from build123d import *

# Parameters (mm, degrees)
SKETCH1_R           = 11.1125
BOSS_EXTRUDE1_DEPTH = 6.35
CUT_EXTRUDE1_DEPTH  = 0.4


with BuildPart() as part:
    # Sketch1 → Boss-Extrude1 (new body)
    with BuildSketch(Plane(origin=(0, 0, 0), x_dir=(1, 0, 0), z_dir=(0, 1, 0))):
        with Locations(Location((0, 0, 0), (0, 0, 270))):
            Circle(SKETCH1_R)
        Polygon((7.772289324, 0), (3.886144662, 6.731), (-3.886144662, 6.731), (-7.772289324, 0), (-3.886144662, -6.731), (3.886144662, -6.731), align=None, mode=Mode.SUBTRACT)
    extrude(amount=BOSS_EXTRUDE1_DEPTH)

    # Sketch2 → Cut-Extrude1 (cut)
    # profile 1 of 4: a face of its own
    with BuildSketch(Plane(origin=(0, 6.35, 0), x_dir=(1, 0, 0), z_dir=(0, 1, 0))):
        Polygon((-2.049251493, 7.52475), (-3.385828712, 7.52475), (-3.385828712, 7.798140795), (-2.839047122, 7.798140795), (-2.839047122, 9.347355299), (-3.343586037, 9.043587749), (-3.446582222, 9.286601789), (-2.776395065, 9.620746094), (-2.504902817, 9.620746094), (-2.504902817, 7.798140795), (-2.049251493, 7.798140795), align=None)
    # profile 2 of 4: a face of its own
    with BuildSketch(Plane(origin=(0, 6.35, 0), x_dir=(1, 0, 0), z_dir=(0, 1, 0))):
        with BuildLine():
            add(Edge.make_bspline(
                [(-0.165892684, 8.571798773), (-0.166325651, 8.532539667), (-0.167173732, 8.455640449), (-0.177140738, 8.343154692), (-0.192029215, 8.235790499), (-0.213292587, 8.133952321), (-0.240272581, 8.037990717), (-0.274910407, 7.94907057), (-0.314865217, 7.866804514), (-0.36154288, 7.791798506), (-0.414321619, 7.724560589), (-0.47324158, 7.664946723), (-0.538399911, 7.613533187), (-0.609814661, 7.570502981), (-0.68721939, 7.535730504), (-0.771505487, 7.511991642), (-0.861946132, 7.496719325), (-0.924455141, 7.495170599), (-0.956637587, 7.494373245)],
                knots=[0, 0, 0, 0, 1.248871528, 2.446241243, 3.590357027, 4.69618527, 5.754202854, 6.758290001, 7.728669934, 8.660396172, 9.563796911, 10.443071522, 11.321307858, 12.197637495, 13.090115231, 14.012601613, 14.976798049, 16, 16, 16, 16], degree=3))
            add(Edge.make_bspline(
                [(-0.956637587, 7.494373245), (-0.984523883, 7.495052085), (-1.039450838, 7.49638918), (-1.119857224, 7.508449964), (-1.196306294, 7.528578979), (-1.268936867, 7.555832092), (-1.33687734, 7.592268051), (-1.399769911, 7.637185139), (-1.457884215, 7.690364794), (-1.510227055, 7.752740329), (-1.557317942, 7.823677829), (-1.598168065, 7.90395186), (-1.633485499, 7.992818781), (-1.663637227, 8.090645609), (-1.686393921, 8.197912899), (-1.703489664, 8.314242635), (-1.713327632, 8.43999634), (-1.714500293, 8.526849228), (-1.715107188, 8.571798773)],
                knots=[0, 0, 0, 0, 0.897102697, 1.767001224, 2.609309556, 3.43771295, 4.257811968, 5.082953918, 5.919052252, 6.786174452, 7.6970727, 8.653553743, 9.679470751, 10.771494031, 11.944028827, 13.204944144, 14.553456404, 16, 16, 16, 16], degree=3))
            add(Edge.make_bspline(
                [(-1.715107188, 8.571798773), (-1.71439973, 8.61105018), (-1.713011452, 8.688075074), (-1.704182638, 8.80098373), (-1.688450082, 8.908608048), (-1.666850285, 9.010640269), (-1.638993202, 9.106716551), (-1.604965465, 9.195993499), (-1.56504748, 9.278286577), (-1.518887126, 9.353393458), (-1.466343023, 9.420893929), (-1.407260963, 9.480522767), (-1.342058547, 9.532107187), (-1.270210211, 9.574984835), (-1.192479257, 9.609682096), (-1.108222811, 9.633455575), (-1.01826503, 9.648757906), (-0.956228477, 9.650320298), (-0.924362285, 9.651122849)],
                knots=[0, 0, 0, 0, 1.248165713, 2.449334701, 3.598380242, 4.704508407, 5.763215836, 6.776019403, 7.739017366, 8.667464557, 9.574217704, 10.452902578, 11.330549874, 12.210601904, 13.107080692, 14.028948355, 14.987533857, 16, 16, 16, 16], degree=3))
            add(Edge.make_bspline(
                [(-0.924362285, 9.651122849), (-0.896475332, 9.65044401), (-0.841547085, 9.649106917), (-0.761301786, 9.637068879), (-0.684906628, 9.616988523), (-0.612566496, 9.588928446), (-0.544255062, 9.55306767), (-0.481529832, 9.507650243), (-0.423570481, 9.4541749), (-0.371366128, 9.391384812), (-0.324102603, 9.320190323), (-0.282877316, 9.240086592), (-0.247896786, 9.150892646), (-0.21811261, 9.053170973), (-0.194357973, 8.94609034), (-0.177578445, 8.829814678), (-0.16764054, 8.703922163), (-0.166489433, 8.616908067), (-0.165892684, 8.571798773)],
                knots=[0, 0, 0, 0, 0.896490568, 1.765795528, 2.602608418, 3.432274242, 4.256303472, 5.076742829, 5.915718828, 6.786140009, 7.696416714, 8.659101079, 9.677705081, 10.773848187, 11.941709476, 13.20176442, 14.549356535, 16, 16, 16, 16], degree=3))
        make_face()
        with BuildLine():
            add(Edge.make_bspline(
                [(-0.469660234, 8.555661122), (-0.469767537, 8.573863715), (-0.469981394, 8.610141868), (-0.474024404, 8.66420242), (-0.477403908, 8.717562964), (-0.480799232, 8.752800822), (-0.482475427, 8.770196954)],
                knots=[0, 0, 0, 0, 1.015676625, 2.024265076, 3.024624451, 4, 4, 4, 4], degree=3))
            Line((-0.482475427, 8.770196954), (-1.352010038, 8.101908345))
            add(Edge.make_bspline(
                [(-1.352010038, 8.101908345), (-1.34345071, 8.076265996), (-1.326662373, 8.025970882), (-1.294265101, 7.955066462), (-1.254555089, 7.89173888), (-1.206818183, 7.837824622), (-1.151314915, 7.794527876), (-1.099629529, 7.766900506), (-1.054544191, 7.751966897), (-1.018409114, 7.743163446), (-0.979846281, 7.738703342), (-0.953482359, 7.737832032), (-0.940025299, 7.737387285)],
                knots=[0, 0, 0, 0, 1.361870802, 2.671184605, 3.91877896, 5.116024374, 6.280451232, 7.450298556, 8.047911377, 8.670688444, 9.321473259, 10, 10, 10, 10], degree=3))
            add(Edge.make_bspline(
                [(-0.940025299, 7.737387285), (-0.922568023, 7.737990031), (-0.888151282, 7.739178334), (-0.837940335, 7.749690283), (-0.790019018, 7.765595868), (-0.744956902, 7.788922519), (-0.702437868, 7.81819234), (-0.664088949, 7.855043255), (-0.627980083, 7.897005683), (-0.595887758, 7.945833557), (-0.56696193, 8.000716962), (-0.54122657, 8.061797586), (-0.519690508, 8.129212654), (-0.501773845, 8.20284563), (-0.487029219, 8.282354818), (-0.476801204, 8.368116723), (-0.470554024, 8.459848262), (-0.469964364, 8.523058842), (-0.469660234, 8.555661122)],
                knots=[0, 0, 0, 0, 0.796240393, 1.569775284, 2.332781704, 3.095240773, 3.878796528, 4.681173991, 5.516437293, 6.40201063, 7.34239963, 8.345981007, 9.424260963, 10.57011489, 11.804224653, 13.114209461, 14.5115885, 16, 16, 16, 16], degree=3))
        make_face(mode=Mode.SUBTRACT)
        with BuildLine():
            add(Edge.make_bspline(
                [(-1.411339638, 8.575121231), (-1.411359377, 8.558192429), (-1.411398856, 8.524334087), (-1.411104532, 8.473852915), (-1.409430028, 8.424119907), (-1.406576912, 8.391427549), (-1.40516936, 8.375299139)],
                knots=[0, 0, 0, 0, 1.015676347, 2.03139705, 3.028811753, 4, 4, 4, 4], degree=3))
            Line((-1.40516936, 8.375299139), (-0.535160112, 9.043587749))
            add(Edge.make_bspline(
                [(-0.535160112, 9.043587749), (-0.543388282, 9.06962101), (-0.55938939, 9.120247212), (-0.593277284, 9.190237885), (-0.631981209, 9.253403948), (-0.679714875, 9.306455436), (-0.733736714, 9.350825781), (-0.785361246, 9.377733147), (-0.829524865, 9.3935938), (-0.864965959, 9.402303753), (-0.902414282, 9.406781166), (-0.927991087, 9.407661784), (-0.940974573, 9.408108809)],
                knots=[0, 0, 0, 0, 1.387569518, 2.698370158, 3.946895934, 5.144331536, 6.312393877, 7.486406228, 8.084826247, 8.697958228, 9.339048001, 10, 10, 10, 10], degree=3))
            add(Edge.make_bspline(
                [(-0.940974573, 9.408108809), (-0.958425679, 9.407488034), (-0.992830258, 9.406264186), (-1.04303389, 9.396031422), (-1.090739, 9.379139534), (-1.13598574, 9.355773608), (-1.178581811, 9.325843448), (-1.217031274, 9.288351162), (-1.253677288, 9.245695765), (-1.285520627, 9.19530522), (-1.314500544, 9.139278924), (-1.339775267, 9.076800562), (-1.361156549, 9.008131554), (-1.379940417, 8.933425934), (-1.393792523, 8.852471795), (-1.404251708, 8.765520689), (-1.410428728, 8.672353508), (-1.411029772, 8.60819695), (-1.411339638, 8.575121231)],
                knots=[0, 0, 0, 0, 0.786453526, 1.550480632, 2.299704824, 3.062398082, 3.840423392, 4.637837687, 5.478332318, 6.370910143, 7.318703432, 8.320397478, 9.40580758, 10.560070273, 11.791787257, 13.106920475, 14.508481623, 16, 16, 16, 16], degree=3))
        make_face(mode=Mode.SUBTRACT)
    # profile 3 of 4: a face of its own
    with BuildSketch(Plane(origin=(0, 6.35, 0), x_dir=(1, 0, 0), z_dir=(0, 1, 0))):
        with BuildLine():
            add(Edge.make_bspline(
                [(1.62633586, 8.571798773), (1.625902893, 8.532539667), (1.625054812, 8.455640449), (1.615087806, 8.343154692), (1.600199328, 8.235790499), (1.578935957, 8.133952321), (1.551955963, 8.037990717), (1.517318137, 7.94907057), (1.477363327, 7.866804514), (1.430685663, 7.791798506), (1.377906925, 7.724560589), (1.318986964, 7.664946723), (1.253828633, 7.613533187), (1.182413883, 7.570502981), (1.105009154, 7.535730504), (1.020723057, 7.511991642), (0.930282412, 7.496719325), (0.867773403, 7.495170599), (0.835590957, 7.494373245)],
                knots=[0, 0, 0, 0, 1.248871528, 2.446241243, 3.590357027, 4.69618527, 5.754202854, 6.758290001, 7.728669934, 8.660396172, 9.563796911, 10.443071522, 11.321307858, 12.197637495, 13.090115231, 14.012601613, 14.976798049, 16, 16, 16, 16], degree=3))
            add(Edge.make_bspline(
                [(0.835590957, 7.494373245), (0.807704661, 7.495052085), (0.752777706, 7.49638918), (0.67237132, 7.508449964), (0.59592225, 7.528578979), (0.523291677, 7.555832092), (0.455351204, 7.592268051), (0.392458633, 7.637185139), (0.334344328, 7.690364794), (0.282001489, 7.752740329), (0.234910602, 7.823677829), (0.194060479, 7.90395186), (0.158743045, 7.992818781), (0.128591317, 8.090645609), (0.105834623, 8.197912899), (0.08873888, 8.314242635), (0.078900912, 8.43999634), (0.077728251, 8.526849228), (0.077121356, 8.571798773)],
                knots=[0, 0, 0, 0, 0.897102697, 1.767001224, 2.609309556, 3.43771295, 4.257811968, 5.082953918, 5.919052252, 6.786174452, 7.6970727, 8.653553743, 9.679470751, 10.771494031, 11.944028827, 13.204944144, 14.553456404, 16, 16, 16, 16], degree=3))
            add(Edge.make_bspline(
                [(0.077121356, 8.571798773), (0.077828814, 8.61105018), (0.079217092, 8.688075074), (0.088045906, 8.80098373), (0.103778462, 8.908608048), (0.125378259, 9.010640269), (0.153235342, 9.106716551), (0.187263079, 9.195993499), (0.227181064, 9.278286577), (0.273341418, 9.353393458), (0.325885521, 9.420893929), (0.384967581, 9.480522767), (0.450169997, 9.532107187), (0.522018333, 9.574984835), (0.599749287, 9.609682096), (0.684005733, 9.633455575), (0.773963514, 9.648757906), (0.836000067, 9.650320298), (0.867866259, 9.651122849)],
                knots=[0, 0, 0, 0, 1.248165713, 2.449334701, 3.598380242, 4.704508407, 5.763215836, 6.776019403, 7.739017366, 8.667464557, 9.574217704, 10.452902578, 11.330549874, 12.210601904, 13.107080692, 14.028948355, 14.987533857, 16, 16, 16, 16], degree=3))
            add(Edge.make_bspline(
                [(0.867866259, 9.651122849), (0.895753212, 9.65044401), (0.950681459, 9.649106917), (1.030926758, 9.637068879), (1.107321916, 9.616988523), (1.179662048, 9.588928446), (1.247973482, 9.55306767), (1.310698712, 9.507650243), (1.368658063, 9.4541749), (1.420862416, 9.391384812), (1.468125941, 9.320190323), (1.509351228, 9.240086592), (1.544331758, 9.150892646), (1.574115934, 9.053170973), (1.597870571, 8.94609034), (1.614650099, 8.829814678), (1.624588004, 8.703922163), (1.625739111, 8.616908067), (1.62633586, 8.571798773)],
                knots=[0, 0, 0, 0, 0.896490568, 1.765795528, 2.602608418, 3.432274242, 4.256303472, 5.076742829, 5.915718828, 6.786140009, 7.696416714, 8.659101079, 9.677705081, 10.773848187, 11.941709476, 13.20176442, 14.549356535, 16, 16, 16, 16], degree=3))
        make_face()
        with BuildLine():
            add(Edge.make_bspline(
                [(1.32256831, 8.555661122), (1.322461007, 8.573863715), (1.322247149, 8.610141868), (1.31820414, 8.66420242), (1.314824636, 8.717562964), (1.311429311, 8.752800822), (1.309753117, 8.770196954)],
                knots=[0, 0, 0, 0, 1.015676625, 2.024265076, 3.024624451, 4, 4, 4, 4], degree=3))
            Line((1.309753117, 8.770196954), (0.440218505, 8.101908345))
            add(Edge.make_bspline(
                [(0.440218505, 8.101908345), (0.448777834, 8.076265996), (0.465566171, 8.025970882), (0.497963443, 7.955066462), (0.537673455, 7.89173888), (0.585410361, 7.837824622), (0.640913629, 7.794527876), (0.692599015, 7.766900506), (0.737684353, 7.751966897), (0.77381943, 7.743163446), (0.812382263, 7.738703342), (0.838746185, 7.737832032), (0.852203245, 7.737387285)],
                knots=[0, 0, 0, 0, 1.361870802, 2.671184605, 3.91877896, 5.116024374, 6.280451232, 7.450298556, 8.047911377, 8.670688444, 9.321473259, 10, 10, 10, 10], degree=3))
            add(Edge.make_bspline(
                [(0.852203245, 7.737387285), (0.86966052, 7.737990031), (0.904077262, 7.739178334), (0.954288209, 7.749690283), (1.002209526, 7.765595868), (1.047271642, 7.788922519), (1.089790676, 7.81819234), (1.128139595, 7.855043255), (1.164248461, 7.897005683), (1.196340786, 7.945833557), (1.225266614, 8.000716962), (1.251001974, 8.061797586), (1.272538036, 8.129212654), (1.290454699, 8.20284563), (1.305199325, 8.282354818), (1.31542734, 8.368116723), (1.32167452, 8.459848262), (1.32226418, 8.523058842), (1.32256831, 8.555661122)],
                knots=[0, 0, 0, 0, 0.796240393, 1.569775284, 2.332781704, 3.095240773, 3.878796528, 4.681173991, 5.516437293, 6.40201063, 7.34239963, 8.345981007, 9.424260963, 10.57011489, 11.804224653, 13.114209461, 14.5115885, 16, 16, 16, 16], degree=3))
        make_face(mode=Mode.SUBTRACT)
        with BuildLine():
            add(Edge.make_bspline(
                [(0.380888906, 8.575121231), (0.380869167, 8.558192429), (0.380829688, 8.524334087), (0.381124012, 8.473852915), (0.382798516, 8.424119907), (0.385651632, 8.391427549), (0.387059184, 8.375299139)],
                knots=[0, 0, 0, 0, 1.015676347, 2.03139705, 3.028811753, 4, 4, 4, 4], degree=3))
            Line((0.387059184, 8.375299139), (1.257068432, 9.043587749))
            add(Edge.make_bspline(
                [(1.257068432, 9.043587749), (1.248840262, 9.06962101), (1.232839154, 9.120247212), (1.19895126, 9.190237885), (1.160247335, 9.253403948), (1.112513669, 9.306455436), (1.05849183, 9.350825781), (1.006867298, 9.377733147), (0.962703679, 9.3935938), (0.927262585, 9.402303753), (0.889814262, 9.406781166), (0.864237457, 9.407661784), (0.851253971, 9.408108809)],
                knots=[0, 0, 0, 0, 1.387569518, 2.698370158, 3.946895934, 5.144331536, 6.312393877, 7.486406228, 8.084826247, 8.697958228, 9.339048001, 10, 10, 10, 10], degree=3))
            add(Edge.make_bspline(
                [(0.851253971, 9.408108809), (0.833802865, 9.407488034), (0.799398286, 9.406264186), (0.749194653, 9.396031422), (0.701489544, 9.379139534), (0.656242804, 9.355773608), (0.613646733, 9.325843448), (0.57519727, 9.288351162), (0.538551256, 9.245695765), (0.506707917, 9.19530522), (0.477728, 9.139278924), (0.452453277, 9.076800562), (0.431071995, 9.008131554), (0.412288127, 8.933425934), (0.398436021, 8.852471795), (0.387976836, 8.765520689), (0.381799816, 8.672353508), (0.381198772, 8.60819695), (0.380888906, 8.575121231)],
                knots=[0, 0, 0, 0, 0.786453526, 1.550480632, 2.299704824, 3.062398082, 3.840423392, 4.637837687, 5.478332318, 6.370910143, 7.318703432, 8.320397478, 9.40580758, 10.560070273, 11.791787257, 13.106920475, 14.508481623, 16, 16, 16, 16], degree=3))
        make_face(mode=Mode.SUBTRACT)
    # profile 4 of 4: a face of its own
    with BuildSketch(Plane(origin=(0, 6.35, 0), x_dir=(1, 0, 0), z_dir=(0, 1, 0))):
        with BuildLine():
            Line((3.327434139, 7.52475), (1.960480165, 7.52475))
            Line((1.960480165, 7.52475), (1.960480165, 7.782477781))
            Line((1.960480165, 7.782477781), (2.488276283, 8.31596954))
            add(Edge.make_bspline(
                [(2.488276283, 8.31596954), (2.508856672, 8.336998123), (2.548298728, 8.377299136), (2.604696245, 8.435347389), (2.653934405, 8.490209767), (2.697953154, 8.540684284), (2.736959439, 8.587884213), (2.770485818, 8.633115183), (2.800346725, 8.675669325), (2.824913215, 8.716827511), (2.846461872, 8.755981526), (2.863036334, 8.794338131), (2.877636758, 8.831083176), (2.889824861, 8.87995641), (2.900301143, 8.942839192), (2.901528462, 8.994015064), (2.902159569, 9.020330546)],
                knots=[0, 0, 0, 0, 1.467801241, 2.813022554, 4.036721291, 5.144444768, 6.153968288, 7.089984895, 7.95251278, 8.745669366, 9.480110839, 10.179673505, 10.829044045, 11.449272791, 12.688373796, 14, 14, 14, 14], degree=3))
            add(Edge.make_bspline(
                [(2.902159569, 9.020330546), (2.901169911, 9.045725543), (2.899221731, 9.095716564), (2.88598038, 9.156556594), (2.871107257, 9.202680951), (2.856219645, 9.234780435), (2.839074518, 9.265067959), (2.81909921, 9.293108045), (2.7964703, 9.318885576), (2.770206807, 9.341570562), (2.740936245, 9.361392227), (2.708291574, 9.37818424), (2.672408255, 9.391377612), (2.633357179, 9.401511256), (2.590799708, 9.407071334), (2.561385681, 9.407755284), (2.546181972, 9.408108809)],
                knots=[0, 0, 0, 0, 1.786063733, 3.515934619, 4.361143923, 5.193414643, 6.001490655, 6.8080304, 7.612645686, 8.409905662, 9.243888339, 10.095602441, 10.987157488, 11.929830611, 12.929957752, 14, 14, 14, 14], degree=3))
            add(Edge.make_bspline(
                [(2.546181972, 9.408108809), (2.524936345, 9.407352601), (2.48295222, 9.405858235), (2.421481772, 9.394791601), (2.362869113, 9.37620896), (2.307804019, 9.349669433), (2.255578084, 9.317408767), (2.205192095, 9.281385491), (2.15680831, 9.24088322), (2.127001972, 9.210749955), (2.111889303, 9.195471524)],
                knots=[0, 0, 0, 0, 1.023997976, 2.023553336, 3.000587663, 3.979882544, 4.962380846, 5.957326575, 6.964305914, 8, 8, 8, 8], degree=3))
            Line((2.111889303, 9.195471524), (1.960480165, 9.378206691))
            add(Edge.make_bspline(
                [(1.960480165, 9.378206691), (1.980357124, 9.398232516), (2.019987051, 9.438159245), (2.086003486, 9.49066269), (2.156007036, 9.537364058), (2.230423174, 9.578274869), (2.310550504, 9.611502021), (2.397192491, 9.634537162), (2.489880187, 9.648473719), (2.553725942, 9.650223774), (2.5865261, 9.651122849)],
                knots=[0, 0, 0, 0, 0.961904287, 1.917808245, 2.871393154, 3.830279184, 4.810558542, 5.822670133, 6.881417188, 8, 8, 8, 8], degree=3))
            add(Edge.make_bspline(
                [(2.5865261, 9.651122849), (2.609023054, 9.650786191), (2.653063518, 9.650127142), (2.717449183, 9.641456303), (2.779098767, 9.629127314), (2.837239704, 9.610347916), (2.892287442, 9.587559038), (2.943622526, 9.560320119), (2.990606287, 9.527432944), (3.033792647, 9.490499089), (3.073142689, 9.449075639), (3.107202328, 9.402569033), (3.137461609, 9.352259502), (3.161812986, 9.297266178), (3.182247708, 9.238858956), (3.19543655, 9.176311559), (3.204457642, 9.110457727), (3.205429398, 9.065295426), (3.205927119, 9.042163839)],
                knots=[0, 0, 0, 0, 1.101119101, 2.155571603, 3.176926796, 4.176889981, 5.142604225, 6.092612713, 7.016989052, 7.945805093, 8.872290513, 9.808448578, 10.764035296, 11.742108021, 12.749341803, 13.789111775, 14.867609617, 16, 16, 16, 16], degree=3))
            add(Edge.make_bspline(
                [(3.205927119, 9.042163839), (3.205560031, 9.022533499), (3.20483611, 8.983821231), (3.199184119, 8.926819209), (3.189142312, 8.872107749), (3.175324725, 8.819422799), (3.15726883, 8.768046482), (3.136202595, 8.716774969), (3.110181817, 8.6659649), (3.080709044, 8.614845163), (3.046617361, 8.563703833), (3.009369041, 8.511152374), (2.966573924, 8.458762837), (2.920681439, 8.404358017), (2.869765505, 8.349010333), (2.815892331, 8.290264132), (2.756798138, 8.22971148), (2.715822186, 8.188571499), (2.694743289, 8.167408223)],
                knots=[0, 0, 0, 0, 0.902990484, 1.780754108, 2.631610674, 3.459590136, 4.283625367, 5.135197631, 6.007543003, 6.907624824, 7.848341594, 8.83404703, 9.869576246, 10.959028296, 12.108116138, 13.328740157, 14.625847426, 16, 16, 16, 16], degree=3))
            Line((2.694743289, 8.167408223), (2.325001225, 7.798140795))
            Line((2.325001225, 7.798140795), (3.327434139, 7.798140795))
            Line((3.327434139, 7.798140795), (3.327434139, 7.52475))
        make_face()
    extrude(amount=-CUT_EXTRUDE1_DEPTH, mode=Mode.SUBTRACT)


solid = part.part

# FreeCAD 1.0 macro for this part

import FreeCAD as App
import Part
import Sketcher

V = App.Vector
Q = App.Units.Quantity


def add_polygon(sketch, points):
    """Adds a closed chain of lines whose ends are joined by coincident constraints."""
    first, n = sketch.GeometryCount, len(points)
    for a, b in zip(points, points[1:] + points[:1]):
        sketch.addGeometry(Part.LineSegment(App.Vector(*a, 0), App.Vector(*b, 0)), False)
    for i in range(n):
        sketch.addConstraint(Sketcher.Constraint("Coincident", first + i, 2, first + (i + 1) % n, 1))

doc = App.newDocument("Part")
body = doc.addObject("PartDesign::Body", "Body")

# Sketch on XZ plane
sketch1 = doc.addObject("Sketcher::SketchObject", "Sketch")
body.addObject(sketch1)
sketch1.AttachmentSupport = (doc.XZ_Plane, [""])
sketch1.MapMode = "FlatFace"
sketch1.addGeometry(Part.Circle(V(0, 0, 0), V(0, 0, 1), 11.1125), False)  # 0
add_polygon(sketch1, [(3.886145, -6.731), (7.772289, 0), (3.886145, 6.731), (-3.886145, 6.731), (-7.772289, 0), (-3.886145, -6.731)])  # lines 1-6
sketch1.addConstraint([
    Sketcher.Constraint("Horizontal", 3),
    Sketcher.Constraint("Horizontal", 6),
    Sketcher.Constraint("Coincident", 0, 3, -1, 1),
    Sketcher.Constraint("Symmetric", 1, 2, 4, 2, -1, 1),
    Sketcher.Constraint("Symmetric", 2, 2, 5, 2, -1, 1),
    Sketcher.Constraint("PointOnObject", 1, 2, -1),
    Sketcher.Constraint("Parallel", 1, 4),
    Sketcher.Constraint("Vertical", 3, 2, 5, 2),
    Sketcher.Constraint("Diameter", 0, Q("0.875 in")),
    Sketcher.Constraint("Angle", 1, Q("60 deg")),
    Sketcher.Constraint("DistanceY", 5, 2, 3, 2, Q("0.53 in")),
    Sketcher.Constraint("DistanceX", 3, 2, 3, 1, Q("7.772289 mm")),
])
pad1 = doc.addObject("PartDesign::Pad", "Pad")
body.addObject(pad1)
pad1.Profile = sketch1
pad1.Length = Q("0.25 in")
pad1.Reversed = True

# Sketch on XZ plane
sketch2 = doc.addObject("Sketcher::SketchObject", "Sketch001")
body.addObject(sketch2)
sketch2.AttachmentSupport = (doc.XZ_Plane, [""])
sketch2.MapMode = "FlatFace"
sketch2.AttachmentOffset = App.Placement(V(0, 0, -0.25 * 25.4), App.Rotation())
add_polygon(sketch2, [(-3.385829, -7.52475), (-2.049251, -7.52475), (-2.049251, -7.798141), (-2.504903, -7.798141), (-2.504903, -9.620746), (-2.776395, -9.620746), (-3.446582, -9.286602), (-3.343586, -9.043588), (-2.839047, -9.347355), (-2.839047, -7.798141), (-3.385829, -7.798141)])  # lines 0-10
sketch2.addGeometry(Part.BSplineCurve([V(-0.165893, -8.571799, 0), V(-0.166326, -8.53254, 0), V(-0.167174, -8.45564, 0), V(-0.177141, -8.343155, 0), V(-0.192029, -8.23579, 0), V(-0.213293, -8.133952, 0), V(-0.240273, -8.037991, 0), V(-0.27491, -7.949071, 0), V(-0.314865, -7.866805, 0), V(-0.361543, -7.791799, 0), V(-0.414322, -7.724561, 0), V(-0.473242, -7.664947, 0), V(-0.5384, -7.613533, 0), V(-0.609815, -7.570503, 0), V(-0.687219, -7.535731, 0), V(-0.771505, -7.511992, 0), V(-0.861946, -7.496719, 0), V(-0.924455, -7.495171, 0), V(-0.956638, -7.494373, 0)], [4, 1, 1, 1, 1, 1, 1, 1, 1, 1, 1, 1, 1, 1, 1, 1, 4], [0, 1.248871528, 2.446241243, 3.590357027, 4.69618527, 5.754202854, 6.758290001, 7.728669934, 8.660396172, 9.563796911, 10.443071522, 11.321307858, 12.197637495, 13.090115231, 14.012601613, 14.976798049, 16], False, 3, [1, 1, 1, 1, 1, 1, 1, 1, 1, 1, 1, 1, 1, 1, 1, 1, 1, 1, 1], False), False)  # 11
sketch2.addGeometry(Part.BSplineCurve([V(-0.924362, -9.651123, 0), V(-0.896475, -9.650444, 0), V(-0.841547, -9.649107, 0), V(-0.761302, -9.637069, 0), V(-0.684907, -9.616989, 0), V(-0.612566, -9.588928, 0), V(-0.544255, -9.553068, 0), V(-0.48153, -9.50765, 0), V(-0.42357, -9.454175, 0), V(-0.371366, -9.391385, 0), V(-0.324103, -9.32019, 0), V(-0.282877, -9.240087, 0), V(-0.247897, -9.150893, 0), V(-0.218113, -9.053171, 0), V(-0.194358, -8.94609, 0), V(-0.177578, -8.829815, 0), V(-0.167641, -8.703922, 0), V(-0.166489, -8.616908, 0), V(-0.165893, -8.571799, 0)], [4, 1, 1, 1, 1, 1, 1, 1, 1, 1, 1, 1, 1, 1, 1, 1, 4], [0, 0.896490568, 1.765795528, 2.602608418, 3.432274242, 4.256303472, 5.076742829, 5.915718828, 6.786140009, 7.696416714, 8.659101079, 9.677705081, 10.773848187, 11.941709476, 13.20176442, 14.549356535, 16], False, 3, [1, 1, 1, 1, 1, 1, 1, 1, 1, 1, 1, 1, 1, 1, 1, 1, 1, 1, 1], False), False)  # 12
sketch2.addGeometry(Part.BSplineCurve([V(-1.715107, -8.571799, 0), V(-1.7144, -8.61105, 0), V(-1.713011, -8.688075, 0), V(-1.704183, -8.800984, 0), V(-1.68845, -8.908608, 0), V(-1.66685, -9.01064, 0), V(-1.638993, -9.106717, 0), V(-1.604965, -9.195993, 0), V(-1.565047, -9.278287, 0), V(-1.518887, -9.353393, 0), V(-1.466343, -9.420894, 0), V(-1.407261, -9.480523, 0), V(-1.342059, -9.532107, 0), V(-1.27021, -9.574985, 0), V(-1.192479, -9.609682, 0), V(-1.108223, -9.633456, 0), V(-1.018265, -9.648758, 0), V(-0.956228, -9.65032, 0), V(-0.924362, -9.651123, 0)], [4, 1, 1, 1, 1, 1, 1, 1, 1, 1, 1, 1, 1, 1, 1, 1, 4], [0, 1.248165713, 2.449334701, 3.598380242, 4.704508407, 5.763215836, 6.776019403, 7.739017366, 8.667464557, 9.574217704, 10.452902578, 11.330549874, 12.210601904, 13.107080692, 14.028948355, 14.987533857, 16], False, 3, [1, 1, 1, 1, 1, 1, 1, 1, 1, 1, 1, 1, 1, 1, 1, 1, 1, 1, 1], False), False)  # 13
sketch2.addGeometry(Part.BSplineCurve([V(-0.956638, -7.494373, 0), V(-0.984524, -7.495052, 0), V(-1.039451, -7.496389, 0), V(-1.119857, -7.50845, 0), V(-1.196306, -7.528579, 0), V(-1.268937, -7.555832, 0), V(-1.336877, -7.592268, 0), V(-1.39977, -7.637185, 0), V(-1.457884, -7.690365, 0), V(-1.510227, -7.75274, 0), V(-1.557318, -7.823678, 0), V(-1.598168, -7.903952, 0), V(-1.633485, -7.992819, 0), V(-1.663637, -8.090646, 0), V(-1.686394, -8.197913, 0), V(-1.70349, -8.314243, 0), V(-1.713328, -8.439996, 0), V(-1.7145, -8.526849, 0), V(-1.715107, -8.571799, 0)], [4, 1, 1, 1, 1, 1, 1, 1, 1, 1, 1, 1, 1, 1, 1, 1, 4], [0, 0.897102697, 1.767001224, 2.609309556, 3.43771295, 4.257811968, 5.082953918, 5.919052252, 6.786174452, 7.6970727, 8.653553743, 9.679470751, 10.771494031, 11.944028827, 13.204944144, 14.553456404, 16], False, 3, [1, 1, 1, 1, 1, 1, 1, 1, 1, 1, 1, 1, 1, 1, 1, 1, 1, 1, 1], False), False)  # 14
sketch2.addGeometry(Part.BSplineCurve([V(-0.940025, -7.737387, 0), V(-0.922568, -7.73799, 0), V(-0.888151, -7.739178, 0), V(-0.83794, -7.74969, 0), V(-0.790019, -7.765596, 0), V(-0.744957, -7.788923, 0), V(-0.702438, -7.818192, 0), V(-0.664089, -7.855043, 0), V(-0.62798, -7.897006, 0), V(-0.595888, -7.945834, 0), V(-0.566962, -8.000717, 0), V(-0.541227, -8.061798, 0), V(-0.519691, -8.129213, 0), V(-0.501774, -8.202846, 0), V(-0.487029, -8.282355, 0), V(-0.476801, -8.368117, 0), V(-0.470554, -8.459848, 0), V(-0.469964, -8.523059, 0), V(-0.46966, -8.555661, 0)], [4, 1, 1, 1, 1, 1, 1, 1, 1, 1, 1, 1, 1, 1, 1, 1, 4], [0, 0.796240393, 1.569775284, 2.332781704, 3.095240773, 3.878796528, 4.681173991, 5.516437293, 6.40201063, 7.34239963, 8.345981007, 9.424260963, 10.57011489, 11.804224653, 13.114209461, 14.5115885, 16], False, 3, [1, 1, 1, 1, 1, 1, 1, 1, 1, 1, 1, 1, 1, 1, 1, 1, 1, 1, 1], False), False)  # 15
sketch2.addGeometry(Part.BSplineCurve([V(-1.35201, -8.101908, 0), V(-1.343451, -8.076266, 0), V(-1.326662, -8.025971, 0), V(-1.294265, -7.955066, 0), V(-1.254555, -7.891739, 0), V(-1.206818, -7.837825, 0), V(-1.151315, -7.794528, 0), V(-1.09963, -7.766901, 0), V(-1.054544, -7.751967, 0), V(-1.018409, -7.743163, 0), V(-0.979846, -7.738703, 0), V(-0.953482, -7.737832, 0), V(-0.940025, -7.737387, 0)], [4, 1, 1, 1, 1, 1, 1, 1, 1, 1, 4], [0, 1.361870802, 2.671184605, 3.91877896, 5.116024374, 6.280451232, 7.450298556, 8.047911377, 8.670688444, 9.321473259, 10], False, 3, [1, 1, 1, 1, 1, 1, 1, 1, 1, 1, 1, 1, 1], False), False)  # 16
sketch2.addGeometry(Part.LineSegment(V(-1.35201, -8.101908, 0), V(-0.482475, -8.770197, 0)), False)  # 17
sketch2.addGeometry(Part.BSplineCurve([V(-0.46966, -8.555661, 0), V(-0.469768, -8.573864, 0), V(-0.469981, -8.610142, 0), V(-0.474024, -8.664202, 0), V(-0.477404, -8.717563, 0), V(-0.480799, -8.752801, 0), V(-0.482475, -8.770197, 0)], [4, 1, 1, 1, 4], [0, 1.015676625, 2.024265076, 3.024624451, 4], False, 3, [1, 1, 1, 1, 1, 1, 1], False), False)  # 18
sketch2.addGeometry(Part.BSplineCurve([V(-0.940975, -9.408109, 0), V(-0.958426, -9.407488, 0), V(-0.99283, -9.406264, 0), V(-1.043034, -9.396031, 0), V(-1.090739, -9.37914, 0), V(-1.135986, -9.355774, 0), V(-1.178582, -9.325843, 0), V(-1.217031, -9.288351, 0), V(-1.253677, -9.245696, 0), V(-1.285521, -9.195305, 0), V(-1.314501, -9.139279, 0), V(-1.339775, -9.076801, 0), V(-1.361157, -9.008132, 0), V(-1.37994, -8.933426, 0), V(-1.393793, -8.852472, 0), V(-1.404252, -8.765521, 0), V(-1.410429, -8.672354, 0), V(-1.41103, -8.608197, 0), V(-1.41134, -8.575121, 0)], [4, 1, 1, 1, 1, 1, 1, 1, 1, 1, 1, 1, 1, 1, 1, 1, 4], [0, 0.786453526, 1.550480632, 2.299704824, 3.062398082, 3.840423392, 4.637837687, 5.478332318, 6.370910143, 7.318703432, 8.320397478, 9.40580758, 10.560070273, 11.791787257, 13.106920475, 14.508481623, 16], False, 3, [1, 1, 1, 1, 1, 1, 1, 1, 1, 1, 1, 1, 1, 1, 1, 1, 1, 1, 1], False), False)  # 19
sketch2.addGeometry(Part.BSplineCurve([V(-0.53516, -9.043588, 0), V(-0.543388, -9.069621, 0), V(-0.559389, -9.120247, 0), V(-0.593277, -9.190238, 0), V(-0.631981, -9.253404, 0), V(-0.679715, -9.306455, 0), V(-0.733737, -9.350826, 0), V(-0.785361, -9.377733, 0), V(-0.829525, -9.393594, 0), V(-0.864966, -9.402304, 0), V(-0.902414, -9.406781, 0), V(-0.927991, -9.407662, 0), V(-0.940975, -9.408109, 0)], [4, 1, 1, 1, 1, 1, 1, 1, 1, 1, 4], [0, 1.387569518, 2.698370158, 3.946895934, 5.144331536, 6.312393877, 7.486406228, 8.084826247, 8.697958228, 9.339048001, 10], False, 3, [1, 1, 1, 1, 1, 1, 1, 1, 1, 1, 1, 1, 1], False), False)  # 20
sketch2.addGeometry(Part.LineSegment(V(-0.53516, -9.043588, 0), V(-1.405169, -8.375299, 0)), False)  # 21
sketch2.addGeometry(Part.BSplineCurve([V(-1.41134, -8.575121, 0), V(-1.411359, -8.558192, 0), V(-1.411399, -8.524334, 0), V(-1.411105, -8.473853, 0), V(-1.40943, -8.42412, 0), V(-1.406577, -8.391428, 0), V(-1.405169, -8.375299, 0)], [4, 1, 1, 1, 4], [0, 1.015676347, 2.03139705, 3.028811753, 4], False, 3, [1, 1, 1, 1, 1, 1, 1], False), False)  # 22
sketch2.addGeometry(Part.BSplineCurve([V(1.626336, -8.571799, 0), V(1.625903, -8.53254, 0), V(1.625055, -8.45564, 0), V(1.615088, -8.343155, 0), V(1.600199, -8.23579, 0), V(1.578936, -8.133952, 0), V(1.551956, -8.037991, 0), V(1.517318, -7.949071, 0), V(1.477363, -7.866805, 0), V(1.430686, -7.791799, 0), V(1.377907, -7.724561, 0), V(1.318987, -7.664947, 0), V(1.253829, -7.613533, 0), V(1.182414, -7.570503, 0), V(1.105009, -7.535731, 0), V(1.020723, -7.511992, 0), V(0.930282, -7.496719, 0), V(0.867773, -7.495171, 0), V(0.835591, -7.494373, 0)], [4, 1, 1, 1, 1, 1, 1, 1, 1, 1, 1, 1, 1, 1, 1, 1, 4], [0, 1.248871528, 2.446241243, 3.590357027, 4.69618527, 5.754202854, 6.758290001, 7.728669934, 8.660396172, 9.563796911, 10.443071522, 11.321307858, 12.197637495, 13.090115231, 14.012601613, 14.976798049, 16], False, 3, [1, 1, 1, 1, 1, 1, 1, 1, 1, 1, 1, 1, 1, 1, 1, 1, 1, 1, 1], False), False)  # 23
sketch2.addGeometry(Part.BSplineCurve([V(0.867866, -9.651123, 0), V(0.895753, -9.650444, 0), V(0.950681, -9.649107, 0), V(1.030927, -9.637069, 0), V(1.107322, -9.616989, 0), V(1.179662, -9.588928, 0), V(1.247973, -9.553068, 0), V(1.310699, -9.50765, 0), V(1.368658, -9.454175, 0), V(1.420862, -9.391385, 0), V(1.468126, -9.32019, 0), V(1.509351, -9.240087, 0), V(1.544332, -9.150893, 0), V(1.574116, -9.053171, 0), V(1.597871, -8.94609, 0), V(1.61465, -8.829815, 0), V(1.624588, -8.703922, 0), V(1.625739, -8.616908, 0), V(1.626336, -8.571799, 0)], [4, 1, 1, 1, 1, 1, 1, 1, 1, 1, 1, 1, 1, 1, 1, 1, 4], [0, 0.896490568, 1.765795528, 2.602608418, 3.432274242, 4.256303472, 5.076742829, 5.915718828, 6.786140009, 7.696416714, 8.659101079, 9.677705081, 10.773848187, 11.941709476, 13.20176442, 14.549356535, 16], False, 3, [1, 1, 1, 1, 1, 1, 1, 1, 1, 1, 1, 1, 1, 1, 1, 1, 1, 1, 1], False), False)  # 24
sketch2.addGeometry(Part.BSplineCurve([V(0.077121, -8.571799, 0), V(0.077829, -8.61105, 0), V(0.079217, -8.688075, 0), V(0.088046, -8.800984, 0), V(0.103778, -8.908608, 0), V(0.125378, -9.01064, 0), V(0.153235, -9.106717, 0), V(0.187263, -9.195993, 0), V(0.227181, -9.278287, 0), V(0.273341, -9.353393, 0), V(0.325886, -9.420894, 0), V(0.384968, -9.480523, 0), V(0.45017, -9.532107, 0), V(0.522018, -9.574985, 0), V(0.599749, -9.609682, 0), V(0.684006, -9.633456, 0), V(0.773964, -9.648758, 0), V(0.836, -9.65032, 0), V(0.867866, -9.651123, 0)], [4, 1, 1, 1, 1, 1, 1, 1, 1, 1, 1, 1, 1, 1, 1, 1, 4], [0, 1.248165713, 2.449334701, 3.598380242, 4.704508407, 5.763215836, 6.776019403, 7.739017366, 8.667464557, 9.574217704, 10.452902578, 11.330549874, 12.210601904, 13.107080692, 14.028948355, 14.987533857, 16], False, 3, [1, 1, 1, 1, 1, 1, 1, 1, 1, 1, 1, 1, 1, 1, 1, 1, 1, 1, 1], False), False)  # 25
sketch2.addGeometry(Part.BSplineCurve([V(0.835591, -7.494373, 0), V(0.807705, -7.495052, 0), V(0.752778, -7.496389, 0), V(0.672371, -7.50845, 0), V(0.595922, -7.528579, 0), V(0.523292, -7.555832, 0), V(0.455351, -7.592268, 0), V(0.392459, -7.637185, 0), V(0.334344, -7.690365, 0), V(0.282001, -7.75274, 0), V(0.234911, -7.823678, 0), V(0.19406, -7.903952, 0), V(0.158743, -7.992819, 0), V(0.128591, -8.090646, 0), V(0.105835, -8.197913, 0), V(0.088739, -8.314243, 0), V(0.078901, -8.439996, 0), V(0.077728, -8.526849, 0), V(0.077121, -8.571799, 0)], [4, 1, 1, 1, 1, 1, 1, 1, 1, 1, 1, 1, 1, 1, 1, 1, 4], [0, 0.897102697, 1.767001224, 2.609309556, 3.43771295, 4.257811968, 5.082953918, 5.919052252, 6.786174452, 7.6970727, 8.653553743, 9.679470751, 10.771494031, 11.944028827, 13.204944144, 14.553456404, 16], False, 3, [1, 1, 1, 1, 1, 1, 1, 1, 1, 1, 1, 1, 1, 1, 1, 1, 1, 1, 1], False), False)  # 26
sketch2.addGeometry(Part.BSplineCurve([V(0.852203, -7.737387, 0), V(0.869661, -7.73799, 0), V(0.904077, -7.739178, 0), V(0.954288, -7.74969, 0), V(1.00221, -7.765596, 0), V(1.047272, -7.788923, 0), V(1.089791, -7.818192, 0), V(1.12814, -7.855043, 0), V(1.164248, -7.897006, 0), V(1.196341, -7.945834, 0), V(1.225267, -8.000717, 0), V(1.251002, -8.061798, 0), V(1.272538, -8.129213, 0), V(1.290455, -8.202846, 0), V(1.305199, -8.282355, 0), V(1.315427, -8.368117, 0), V(1.321675, -8.459848, 0), V(1.322264, -8.523059, 0), V(1.322568, -8.555661, 0)], [4, 1, 1, 1, 1, 1, 1, 1, 1, 1, 1, 1, 1, 1, 1, 1, 4], [0, 0.796240393, 1.569775284, 2.332781704, 3.095240773, 3.878796528, 4.681173991, 5.516437293, 6.40201063, 7.34239963, 8.345981007, 9.424260963, 10.57011489, 11.804224653, 13.114209461, 14.5115885, 16], False, 3, [1, 1, 1, 1, 1, 1, 1, 1, 1, 1, 1, 1, 1, 1, 1, 1, 1, 1, 1], False), False)  # 27
sketch2.addGeometry(Part.BSplineCurve([V(0.440219, -8.101908, 0), V(0.448778, -8.076266, 0), V(0.465566, -8.025971, 0), V(0.497963, -7.955066, 0), V(0.537673, -7.891739, 0), V(0.58541, -7.837825, 0), V(0.640914, -7.794528, 0), V(0.692599, -7.766901, 0), V(0.737684, -7.751967, 0), V(0.773819, -7.743163, 0), V(0.812382, -7.738703, 0), V(0.838746, -7.737832, 0), V(0.852203, -7.737387, 0)], [4, 1, 1, 1, 1, 1, 1, 1, 1, 1, 4], [0, 1.361870802, 2.671184605, 3.91877896, 5.116024374, 6.280451232, 7.450298556, 8.047911377, 8.670688444, 9.321473259, 10], False, 3, [1, 1, 1, 1, 1, 1, 1, 1, 1, 1, 1, 1, 1], False), False)  # 28
sketch2.addGeometry(Part.LineSegment(V(0.440219, -8.101908, 0), V(1.309753, -8.770197, 0)), False)  # 29
sketch2.addGeometry(Part.BSplineCurve([V(1.322568, -8.555661, 0), V(1.322461, -8.573864, 0), V(1.322247, -8.610142, 0), V(1.318204, -8.664202, 0), V(1.314825, -8.717563, 0), V(1.311429, -8.752801, 0), V(1.309753, -8.770197, 0)], [4, 1, 1, 1, 4], [0, 1.015676625, 2.024265076, 3.024624451, 4], False, 3, [1, 1, 1, 1, 1, 1, 1], False), False)  # 30
sketch2.addGeometry(Part.BSplineCurve([V(0.851254, -9.408109, 0), V(0.833803, -9.407488, 0), V(0.799398, -9.406264, 0), V(0.749195, -9.396031, 0), V(0.70149, -9.37914, 0), V(0.656243, -9.355774, 0), V(0.613647, -9.325843, 0), V(0.575197, -9.288351, 0), V(0.538551, -9.245696, 0), V(0.506708, -9.195305, 0), V(0.477728, -9.139279, 0), V(0.452453, -9.076801, 0), V(0.431072, -9.008132, 0), V(0.412288, -8.933426, 0), V(0.398436, -8.852472, 0), V(0.387977, -8.765521, 0), V(0.3818, -8.672354, 0), V(0.381199, -8.608197, 0), V(0.380889, -8.575121, 0)], [4, 1, 1, 1, 1, 1, 1, 1, 1, 1, 1, 1, 1, 1, 1, 1, 4], [0, 0.786453526, 1.550480632, 2.299704824, 3.062398082, 3.840423392, 4.637837687, 5.478332318, 6.370910143, 7.318703432, 8.320397478, 9.40580758, 10.560070273, 11.791787257, 13.106920475, 14.508481623, 16], False, 3, [1, 1, 1, 1, 1, 1, 1, 1, 1, 1, 1, 1, 1, 1, 1, 1, 1, 1, 1], False), False)  # 31
sketch2.addGeometry(Part.BSplineCurve([V(1.257068, -9.043588, 0), V(1.24884, -9.069621, 0), V(1.232839, -9.120247, 0), V(1.198951, -9.190238, 0), V(1.160247, -9.253404, 0), V(1.112514, -9.306455, 0), V(1.058492, -9.350826, 0), V(1.006867, -9.377733, 0), V(0.962704, -9.393594, 0), V(0.927263, -9.402304, 0), V(0.889814, -9.406781, 0), V(0.864237, -9.407662, 0), V(0.851254, -9.408109, 0)], [4, 1, 1, 1, 1, 1, 1, 1, 1, 1, 4], [0, 1.387569518, 2.698370158, 3.946895934, 5.144331536, 6.312393877, 7.486406228, 8.084826247, 8.697958228, 9.339048001, 10], False, 3, [1, 1, 1, 1, 1, 1, 1, 1, 1, 1, 1, 1, 1], False), False)  # 32
sketch2.addGeometry(Part.LineSegment(V(1.257068, -9.043588, 0), V(0.387059, -8.375299, 0)), False)  # 33
sketch2.addGeometry(Part.BSplineCurve([V(0.380889, -8.575121, 0), V(0.380869, -8.558192, 0), V(0.38083, -8.524334, 0), V(0.381124, -8.473853, 0), V(0.382799, -8.42412, 0), V(0.385652, -8.391428, 0), V(0.387059, -8.375299, 0)], [4, 1, 1, 1, 4], [0, 1.015676347, 2.03139705, 3.028811753, 4], False, 3, [1, 1, 1, 1, 1, 1, 1], False), False)  # 34
sketch2.addGeometry(Part.LineSegment(V(1.96048, -7.52475, 0), V(3.327434, -7.52475, 0)), False)  # 35
sketch2.addGeometry(Part.LineSegment(V(3.327434, -7.52475, 0), V(3.327434, -7.798141, 0)), False)  # 36
sketch2.addGeometry(Part.LineSegment(V(3.327434, -7.798141, 0), V(2.325001, -7.798141, 0)), False)  # 37
sketch2.addGeometry(Part.LineSegment(V(2.325001, -7.798141, 0), V(2.694743, -8.167408, 0)), False)  # 38
sketch2.addGeometry(Part.BSplineCurve([V(3.205927, -9.042164, 0), V(3.20556, -9.022533, 0), V(3.204836, -8.983821, 0), V(3.199184, -8.926819, 0), V(3.189142, -8.872108, 0), V(3.175325, -8.819423, 0), V(3.157269, -8.768046, 0), V(3.136203, -8.716775, 0), V(3.110182, -8.665965, 0), V(3.080709, -8.614845, 0), V(3.046617, -8.563704, 0), V(3.009369, -8.511152, 0), V(2.966574, -8.458763, 0), V(2.920681, -8.404358, 0), V(2.869766, -8.34901, 0), V(2.815892, -8.290264, 0), V(2.756798, -8.229711, 0), V(2.715822, -8.188571, 0), V(2.694743, -8.167408, 0)], [4, 1, 1, 1, 1, 1, 1, 1, 1, 1, 1, 1, 1, 1, 1, 1, 4], [0, 0.902990484, 1.780754108, 2.631610674, 3.459590136, 4.283625367, 5.135197631, 6.007543003, 6.907624824, 7.848341594, 8.83404703, 9.869576246, 10.959028296, 12.108116138, 13.328740157, 14.625847426, 16], False, 3, [1, 1, 1, 1, 1, 1, 1, 1, 1, 1, 1, 1, 1, 1, 1, 1, 1, 1, 1], False), False)  # 39
sketch2.addGeometry(Part.BSplineCurve([V(2.586526, -9.651123, 0), V(2.609023, -9.650786, 0), V(2.653064, -9.650127, 0), V(2.717449, -9.641456, 0), V(2.779099, -9.629127, 0), V(2.83724, -9.610348, 0), V(2.892287, -9.587559, 0), V(2.943623, -9.56032, 0), V(2.990606, -9.527433, 0), V(3.033793, -9.490499, 0), V(3.073143, -9.449076, 0), V(3.107202, -9.402569, 0), V(3.137462, -9.35226, 0), V(3.161813, -9.297266, 0), V(3.182248, -9.238859, 0), V(3.195437, -9.176312, 0), V(3.204458, -9.110458, 0), V(3.205429, -9.065295, 0), V(3.205927, -9.042164, 0)], [4, 1, 1, 1, 1, 1, 1, 1, 1, 1, 1, 1, 1, 1, 1, 1, 4], [0, 1.101119101, 2.155571603, 3.176926796, 4.176889981, 5.142604225, 6.092612713, 7.016989052, 7.945805093, 8.872290513, 9.808448578, 10.764035296, 11.742108021, 12.749341803, 13.789111775, 14.867609617, 16], False, 3, [1, 1, 1, 1, 1, 1, 1, 1, 1, 1, 1, 1, 1, 1, 1, 1, 1, 1, 1], False), False)  # 40
sketch2.addGeometry(Part.BSplineCurve([V(1.96048, -9.378207, 0), V(1.980357, -9.398233, 0), V(2.019987, -9.438159, 0), V(2.086003, -9.490663, 0), V(2.156007, -9.537364, 0), V(2.230423, -9.578275, 0), V(2.310551, -9.611502, 0), V(2.397192, -9.634537, 0), V(2.48988, -9.648474, 0), V(2.553726, -9.650224, 0), V(2.586526, -9.651123, 0)], [4, 1, 1, 1, 1, 1, 1, 1, 4], [0, 0.961904287, 1.917808245, 2.871393154, 3.830279184, 4.810558542, 5.822670133, 6.881417188, 8], False, 3, [1, 1, 1, 1, 1, 1, 1, 1, 1, 1, 1], False), False)  # 41
sketch2.addGeometry(Part.LineSegment(V(1.96048, -9.378207, 0), V(2.111889, -9.195472, 0)), False)  # 42
sketch2.addGeometry(Part.BSplineCurve([V(2.546182, -9.408109, 0), V(2.524936, -9.407353, 0), V(2.482952, -9.405858, 0), V(2.421482, -9.394792, 0), V(2.362869, -9.376209, 0), V(2.307804, -9.349669, 0), V(2.255578, -9.317409, 0), V(2.205192, -9.281385, 0), V(2.156808, -9.240883, 0), V(2.127002, -9.21075, 0), V(2.111889, -9.195472, 0)], [4, 1, 1, 1, 1, 1, 1, 1, 4], [0, 1.023997976, 2.023553336, 3.000587663, 3.979882544, 4.962380846, 5.957326575, 6.964305914, 8], False, 3, [1, 1, 1, 1, 1, 1, 1, 1, 1, 1, 1], False), False)  # 43
sketch2.addGeometry(Part.BSplineCurve([V(2.90216, -9.020331, 0), V(2.90117, -9.045726, 0), V(2.899222, -9.095717, 0), V(2.88598, -9.156557, 0), V(2.871107, -9.202681, 0), V(2.85622, -9.23478, 0), V(2.839075, -9.265068, 0), V(2.819099, -9.293108, 0), V(2.79647, -9.318886, 0), V(2.770207, -9.341571, 0), V(2.740936, -9.361392, 0), V(2.708292, -9.378184, 0), V(2.672408, -9.391378, 0), V(2.633357, -9.401511, 0), V(2.5908, -9.407071, 0), V(2.561386, -9.407755, 0), V(2.546182, -9.408109, 0)], [4, 1, 1, 1, 1, 1, 1, 1, 1, 1, 1, 1, 1, 1, 4], [0, 1.786063733, 3.515934619, 4.361143923, 5.193414643, 6.001490655, 6.8080304, 7.612645686, 8.409905662, 9.243888339, 10.095602441, 10.987157488, 11.929830611, 12.929957752, 14], False, 3, [1, 1, 1, 1, 1, 1, 1, 1, 1, 1, 1, 1, 1, 1, 1, 1, 1], False), False)  # 44
sketch2.addGeometry(Part.BSplineCurve([V(2.488276, -8.31597, 0), V(2.508857, -8.336998, 0), V(2.548299, -8.377299, 0), V(2.604696, -8.435347, 0), V(2.653934, -8.49021, 0), V(2.697953, -8.540684, 0), V(2.736959, -8.587884, 0), V(2.770486, -8.633115, 0), V(2.800347, -8.675669, 0), V(2.824913, -8.716828, 0), V(2.846462, -8.755982, 0), V(2.863036, -8.794338, 0), V(2.877637, -8.831083, 0), V(2.889825, -8.879956, 0), V(2.900301, -8.942839, 0), V(2.901528, -8.994015, 0), V(2.90216, -9.020331, 0)], [4, 1, 1, 1, 1, 1, 1, 1, 1, 1, 1, 1, 1, 1, 4], [0, 1.467801241, 2.813022554, 4.036721291, 5.144444768, 6.153968288, 7.089984895, 7.95251278, 8.745669366, 9.480110839, 10.179673505, 10.829044045, 11.449272791, 12.688373796, 14], False, 3, [1, 1, 1, 1, 1, 1, 1, 1, 1, 1, 1, 1, 1, 1, 1, 1, 1], False), False)  # 45
sketch2.addGeometry(Part.LineSegment(V(2.488276, -8.31597, 0), V(1.96048, -7.782478, 0)), False)  # 46
sketch2.addGeometry(Part.LineSegment(V(1.96048, -7.782478, 0), V(1.96048, -7.52475, 0)), False)  # 47
sketch2.addConstraint([
    Sketcher.Constraint("Block", 11),
    Sketcher.Constraint("Block", 12),
    Sketcher.Constraint("Block", 13),
    Sketcher.Constraint("Block", 14),
    Sketcher.Constraint("Block", 15),
    Sketcher.Constraint("Block", 16),
    Sketcher.Constraint("Block", 18),
    Sketcher.Constraint("Block", 19),
    Sketcher.Constraint("Block", 20),
    Sketcher.Constraint("Block", 22),
    Sketcher.Constraint("Block", 23),
    Sketcher.Constraint("Block", 24),
    Sketcher.Constraint("Block", 25),
    Sketcher.Constraint("Block", 26),
    Sketcher.Constraint("Block", 27),
    Sketcher.Constraint("Block", 28),
    Sketcher.Constraint("Block", 30),
    Sketcher.Constraint("Block", 31),
    Sketcher.Constraint("Block", 32),
    Sketcher.Constraint("Block", 34),
    Sketcher.Constraint("Block", 39),
    Sketcher.Constraint("Block", 40),
    Sketcher.Constraint("Block", 41),
    Sketcher.Constraint("Block", 43),
    Sketcher.Constraint("Block", 44),
    Sketcher.Constraint("Block", 45),
    Sketcher.Constraint("Coincident", 16, 1, 17, 1),
    Sketcher.Constraint("Coincident", 17, 2, 18, 2),
    Sketcher.Constraint("Coincident", 20, 1, 21, 1),
    Sketcher.Constraint("Coincident", 21, 2, 22, 2),
    Sketcher.Constraint("Coincident", 28, 1, 29, 1),
    Sketcher.Constraint("Coincident", 29, 2, 30, 2),
    Sketcher.Constraint("Coincident", 32, 1, 33, 1),
    Sketcher.Constraint("Coincident", 33, 2, 34, 2),
    Sketcher.Constraint("Coincident", 35, 2, 36, 1),
    Sketcher.Constraint("Coincident", 36, 2, 37, 1),
    Sketcher.Constraint("Coincident", 37, 2, 38, 1),
    Sketcher.Constraint("Coincident", 38, 2, 39, 2),
    Sketcher.Constraint("Coincident", 41, 1, 42, 1),
    Sketcher.Constraint("Coincident", 42, 2, 43, 2),
    Sketcher.Constraint("Coincident", 45, 1, 46, 1),
    Sketcher.Constraint("Coincident", 46, 2, 47, 1),
    Sketcher.Constraint("Coincident", 47, 2, 35, 1),
    Sketcher.Constraint("Horizontal", 0),
    Sketcher.Constraint("Vertical", 1),
    Sketcher.Constraint("Horizontal", 2),
    Sketcher.Constraint("Vertical", 3),
    Sketcher.Constraint("Horizontal", 4),
    Sketcher.Constraint("Vertical", 8),
    Sketcher.Constraint("Horizontal", 9),
    Sketcher.Constraint("Vertical", 10),
    Sketcher.Constraint("Horizontal", 35),
    Sketcher.Constraint("Vertical", 36),
    Sketcher.Constraint("Horizontal", 37),
    Sketcher.Constraint("Vertical", 47),
    Sketcher.Constraint("Horizontal", 2, 2, 8, 2),
    Sketcher.Constraint("Horizontal", 10, 2, 35, 2),
    Sketcher.Constraint("Horizontal", 9, 2, 36, 2),
    Sketcher.Constraint("DistanceX", 2, 2, 2, 1, Q("0.455651 mm")),
    Sketcher.Constraint("DistanceX", 9, 2, 9, 1, Q("0.546782 mm")),
    Sketcher.Constraint("DistanceY", 1, 2, 1, 1, Q("0.273391 mm")),
    Sketcher.Constraint("DistanceY", 5, 2, -1, 1, Q("9.286602 mm")),
    Sketcher.Constraint("DistanceX", -1, 1, 37, 2, Q("2.325001 mm")),
    Sketcher.Constraint("Distance", 6, Q("0.263939 mm")),
    Sketcher.Constraint("Distance", 38, Q("0.522559 mm")),
    Sketcher.Constraint("DistanceX", 0, 1, 0, 2, Q("1.336577 mm")),
    Sketcher.Constraint("DistanceX", 4, 2, 4, 1, Q("0.271492 mm")),
    Sketcher.Constraint("DistanceX", 35, 1, 35, 2, Q("1.366954 mm")),
    Sketcher.Constraint("DistanceX", 37, 2, 37, 1, Q("1.002433 mm")),
    Sketcher.Constraint("DistanceY", 3, 2, 3, 1, Q("1.822605 mm")),
    Sketcher.Constraint("DistanceY", 8, 1, 8, 2, Q("1.549215 mm")),
    Sketcher.Constraint("DistanceY", 47, 1, 47, 2, Q("0.257728 mm")),
    Sketcher.Constraint("DistanceX", 0, 2, -1, 1, Q("2.049251 mm")),
    Sketcher.Constraint("DistanceX", 5, 2, 3, 2, Q("0.941679 mm")),
    Sketcher.Constraint("DistanceX", 6, 2, 4, 2, Q("0.567191 mm")),
])
pocket1 = doc.addObject("PartDesign::Pocket", "Pocket")
body.addObject(pocket1)
pocket1.Profile = sketch2
pocket1.Length = 0.4
pocket1.Reversed = True

doc.recompute()
